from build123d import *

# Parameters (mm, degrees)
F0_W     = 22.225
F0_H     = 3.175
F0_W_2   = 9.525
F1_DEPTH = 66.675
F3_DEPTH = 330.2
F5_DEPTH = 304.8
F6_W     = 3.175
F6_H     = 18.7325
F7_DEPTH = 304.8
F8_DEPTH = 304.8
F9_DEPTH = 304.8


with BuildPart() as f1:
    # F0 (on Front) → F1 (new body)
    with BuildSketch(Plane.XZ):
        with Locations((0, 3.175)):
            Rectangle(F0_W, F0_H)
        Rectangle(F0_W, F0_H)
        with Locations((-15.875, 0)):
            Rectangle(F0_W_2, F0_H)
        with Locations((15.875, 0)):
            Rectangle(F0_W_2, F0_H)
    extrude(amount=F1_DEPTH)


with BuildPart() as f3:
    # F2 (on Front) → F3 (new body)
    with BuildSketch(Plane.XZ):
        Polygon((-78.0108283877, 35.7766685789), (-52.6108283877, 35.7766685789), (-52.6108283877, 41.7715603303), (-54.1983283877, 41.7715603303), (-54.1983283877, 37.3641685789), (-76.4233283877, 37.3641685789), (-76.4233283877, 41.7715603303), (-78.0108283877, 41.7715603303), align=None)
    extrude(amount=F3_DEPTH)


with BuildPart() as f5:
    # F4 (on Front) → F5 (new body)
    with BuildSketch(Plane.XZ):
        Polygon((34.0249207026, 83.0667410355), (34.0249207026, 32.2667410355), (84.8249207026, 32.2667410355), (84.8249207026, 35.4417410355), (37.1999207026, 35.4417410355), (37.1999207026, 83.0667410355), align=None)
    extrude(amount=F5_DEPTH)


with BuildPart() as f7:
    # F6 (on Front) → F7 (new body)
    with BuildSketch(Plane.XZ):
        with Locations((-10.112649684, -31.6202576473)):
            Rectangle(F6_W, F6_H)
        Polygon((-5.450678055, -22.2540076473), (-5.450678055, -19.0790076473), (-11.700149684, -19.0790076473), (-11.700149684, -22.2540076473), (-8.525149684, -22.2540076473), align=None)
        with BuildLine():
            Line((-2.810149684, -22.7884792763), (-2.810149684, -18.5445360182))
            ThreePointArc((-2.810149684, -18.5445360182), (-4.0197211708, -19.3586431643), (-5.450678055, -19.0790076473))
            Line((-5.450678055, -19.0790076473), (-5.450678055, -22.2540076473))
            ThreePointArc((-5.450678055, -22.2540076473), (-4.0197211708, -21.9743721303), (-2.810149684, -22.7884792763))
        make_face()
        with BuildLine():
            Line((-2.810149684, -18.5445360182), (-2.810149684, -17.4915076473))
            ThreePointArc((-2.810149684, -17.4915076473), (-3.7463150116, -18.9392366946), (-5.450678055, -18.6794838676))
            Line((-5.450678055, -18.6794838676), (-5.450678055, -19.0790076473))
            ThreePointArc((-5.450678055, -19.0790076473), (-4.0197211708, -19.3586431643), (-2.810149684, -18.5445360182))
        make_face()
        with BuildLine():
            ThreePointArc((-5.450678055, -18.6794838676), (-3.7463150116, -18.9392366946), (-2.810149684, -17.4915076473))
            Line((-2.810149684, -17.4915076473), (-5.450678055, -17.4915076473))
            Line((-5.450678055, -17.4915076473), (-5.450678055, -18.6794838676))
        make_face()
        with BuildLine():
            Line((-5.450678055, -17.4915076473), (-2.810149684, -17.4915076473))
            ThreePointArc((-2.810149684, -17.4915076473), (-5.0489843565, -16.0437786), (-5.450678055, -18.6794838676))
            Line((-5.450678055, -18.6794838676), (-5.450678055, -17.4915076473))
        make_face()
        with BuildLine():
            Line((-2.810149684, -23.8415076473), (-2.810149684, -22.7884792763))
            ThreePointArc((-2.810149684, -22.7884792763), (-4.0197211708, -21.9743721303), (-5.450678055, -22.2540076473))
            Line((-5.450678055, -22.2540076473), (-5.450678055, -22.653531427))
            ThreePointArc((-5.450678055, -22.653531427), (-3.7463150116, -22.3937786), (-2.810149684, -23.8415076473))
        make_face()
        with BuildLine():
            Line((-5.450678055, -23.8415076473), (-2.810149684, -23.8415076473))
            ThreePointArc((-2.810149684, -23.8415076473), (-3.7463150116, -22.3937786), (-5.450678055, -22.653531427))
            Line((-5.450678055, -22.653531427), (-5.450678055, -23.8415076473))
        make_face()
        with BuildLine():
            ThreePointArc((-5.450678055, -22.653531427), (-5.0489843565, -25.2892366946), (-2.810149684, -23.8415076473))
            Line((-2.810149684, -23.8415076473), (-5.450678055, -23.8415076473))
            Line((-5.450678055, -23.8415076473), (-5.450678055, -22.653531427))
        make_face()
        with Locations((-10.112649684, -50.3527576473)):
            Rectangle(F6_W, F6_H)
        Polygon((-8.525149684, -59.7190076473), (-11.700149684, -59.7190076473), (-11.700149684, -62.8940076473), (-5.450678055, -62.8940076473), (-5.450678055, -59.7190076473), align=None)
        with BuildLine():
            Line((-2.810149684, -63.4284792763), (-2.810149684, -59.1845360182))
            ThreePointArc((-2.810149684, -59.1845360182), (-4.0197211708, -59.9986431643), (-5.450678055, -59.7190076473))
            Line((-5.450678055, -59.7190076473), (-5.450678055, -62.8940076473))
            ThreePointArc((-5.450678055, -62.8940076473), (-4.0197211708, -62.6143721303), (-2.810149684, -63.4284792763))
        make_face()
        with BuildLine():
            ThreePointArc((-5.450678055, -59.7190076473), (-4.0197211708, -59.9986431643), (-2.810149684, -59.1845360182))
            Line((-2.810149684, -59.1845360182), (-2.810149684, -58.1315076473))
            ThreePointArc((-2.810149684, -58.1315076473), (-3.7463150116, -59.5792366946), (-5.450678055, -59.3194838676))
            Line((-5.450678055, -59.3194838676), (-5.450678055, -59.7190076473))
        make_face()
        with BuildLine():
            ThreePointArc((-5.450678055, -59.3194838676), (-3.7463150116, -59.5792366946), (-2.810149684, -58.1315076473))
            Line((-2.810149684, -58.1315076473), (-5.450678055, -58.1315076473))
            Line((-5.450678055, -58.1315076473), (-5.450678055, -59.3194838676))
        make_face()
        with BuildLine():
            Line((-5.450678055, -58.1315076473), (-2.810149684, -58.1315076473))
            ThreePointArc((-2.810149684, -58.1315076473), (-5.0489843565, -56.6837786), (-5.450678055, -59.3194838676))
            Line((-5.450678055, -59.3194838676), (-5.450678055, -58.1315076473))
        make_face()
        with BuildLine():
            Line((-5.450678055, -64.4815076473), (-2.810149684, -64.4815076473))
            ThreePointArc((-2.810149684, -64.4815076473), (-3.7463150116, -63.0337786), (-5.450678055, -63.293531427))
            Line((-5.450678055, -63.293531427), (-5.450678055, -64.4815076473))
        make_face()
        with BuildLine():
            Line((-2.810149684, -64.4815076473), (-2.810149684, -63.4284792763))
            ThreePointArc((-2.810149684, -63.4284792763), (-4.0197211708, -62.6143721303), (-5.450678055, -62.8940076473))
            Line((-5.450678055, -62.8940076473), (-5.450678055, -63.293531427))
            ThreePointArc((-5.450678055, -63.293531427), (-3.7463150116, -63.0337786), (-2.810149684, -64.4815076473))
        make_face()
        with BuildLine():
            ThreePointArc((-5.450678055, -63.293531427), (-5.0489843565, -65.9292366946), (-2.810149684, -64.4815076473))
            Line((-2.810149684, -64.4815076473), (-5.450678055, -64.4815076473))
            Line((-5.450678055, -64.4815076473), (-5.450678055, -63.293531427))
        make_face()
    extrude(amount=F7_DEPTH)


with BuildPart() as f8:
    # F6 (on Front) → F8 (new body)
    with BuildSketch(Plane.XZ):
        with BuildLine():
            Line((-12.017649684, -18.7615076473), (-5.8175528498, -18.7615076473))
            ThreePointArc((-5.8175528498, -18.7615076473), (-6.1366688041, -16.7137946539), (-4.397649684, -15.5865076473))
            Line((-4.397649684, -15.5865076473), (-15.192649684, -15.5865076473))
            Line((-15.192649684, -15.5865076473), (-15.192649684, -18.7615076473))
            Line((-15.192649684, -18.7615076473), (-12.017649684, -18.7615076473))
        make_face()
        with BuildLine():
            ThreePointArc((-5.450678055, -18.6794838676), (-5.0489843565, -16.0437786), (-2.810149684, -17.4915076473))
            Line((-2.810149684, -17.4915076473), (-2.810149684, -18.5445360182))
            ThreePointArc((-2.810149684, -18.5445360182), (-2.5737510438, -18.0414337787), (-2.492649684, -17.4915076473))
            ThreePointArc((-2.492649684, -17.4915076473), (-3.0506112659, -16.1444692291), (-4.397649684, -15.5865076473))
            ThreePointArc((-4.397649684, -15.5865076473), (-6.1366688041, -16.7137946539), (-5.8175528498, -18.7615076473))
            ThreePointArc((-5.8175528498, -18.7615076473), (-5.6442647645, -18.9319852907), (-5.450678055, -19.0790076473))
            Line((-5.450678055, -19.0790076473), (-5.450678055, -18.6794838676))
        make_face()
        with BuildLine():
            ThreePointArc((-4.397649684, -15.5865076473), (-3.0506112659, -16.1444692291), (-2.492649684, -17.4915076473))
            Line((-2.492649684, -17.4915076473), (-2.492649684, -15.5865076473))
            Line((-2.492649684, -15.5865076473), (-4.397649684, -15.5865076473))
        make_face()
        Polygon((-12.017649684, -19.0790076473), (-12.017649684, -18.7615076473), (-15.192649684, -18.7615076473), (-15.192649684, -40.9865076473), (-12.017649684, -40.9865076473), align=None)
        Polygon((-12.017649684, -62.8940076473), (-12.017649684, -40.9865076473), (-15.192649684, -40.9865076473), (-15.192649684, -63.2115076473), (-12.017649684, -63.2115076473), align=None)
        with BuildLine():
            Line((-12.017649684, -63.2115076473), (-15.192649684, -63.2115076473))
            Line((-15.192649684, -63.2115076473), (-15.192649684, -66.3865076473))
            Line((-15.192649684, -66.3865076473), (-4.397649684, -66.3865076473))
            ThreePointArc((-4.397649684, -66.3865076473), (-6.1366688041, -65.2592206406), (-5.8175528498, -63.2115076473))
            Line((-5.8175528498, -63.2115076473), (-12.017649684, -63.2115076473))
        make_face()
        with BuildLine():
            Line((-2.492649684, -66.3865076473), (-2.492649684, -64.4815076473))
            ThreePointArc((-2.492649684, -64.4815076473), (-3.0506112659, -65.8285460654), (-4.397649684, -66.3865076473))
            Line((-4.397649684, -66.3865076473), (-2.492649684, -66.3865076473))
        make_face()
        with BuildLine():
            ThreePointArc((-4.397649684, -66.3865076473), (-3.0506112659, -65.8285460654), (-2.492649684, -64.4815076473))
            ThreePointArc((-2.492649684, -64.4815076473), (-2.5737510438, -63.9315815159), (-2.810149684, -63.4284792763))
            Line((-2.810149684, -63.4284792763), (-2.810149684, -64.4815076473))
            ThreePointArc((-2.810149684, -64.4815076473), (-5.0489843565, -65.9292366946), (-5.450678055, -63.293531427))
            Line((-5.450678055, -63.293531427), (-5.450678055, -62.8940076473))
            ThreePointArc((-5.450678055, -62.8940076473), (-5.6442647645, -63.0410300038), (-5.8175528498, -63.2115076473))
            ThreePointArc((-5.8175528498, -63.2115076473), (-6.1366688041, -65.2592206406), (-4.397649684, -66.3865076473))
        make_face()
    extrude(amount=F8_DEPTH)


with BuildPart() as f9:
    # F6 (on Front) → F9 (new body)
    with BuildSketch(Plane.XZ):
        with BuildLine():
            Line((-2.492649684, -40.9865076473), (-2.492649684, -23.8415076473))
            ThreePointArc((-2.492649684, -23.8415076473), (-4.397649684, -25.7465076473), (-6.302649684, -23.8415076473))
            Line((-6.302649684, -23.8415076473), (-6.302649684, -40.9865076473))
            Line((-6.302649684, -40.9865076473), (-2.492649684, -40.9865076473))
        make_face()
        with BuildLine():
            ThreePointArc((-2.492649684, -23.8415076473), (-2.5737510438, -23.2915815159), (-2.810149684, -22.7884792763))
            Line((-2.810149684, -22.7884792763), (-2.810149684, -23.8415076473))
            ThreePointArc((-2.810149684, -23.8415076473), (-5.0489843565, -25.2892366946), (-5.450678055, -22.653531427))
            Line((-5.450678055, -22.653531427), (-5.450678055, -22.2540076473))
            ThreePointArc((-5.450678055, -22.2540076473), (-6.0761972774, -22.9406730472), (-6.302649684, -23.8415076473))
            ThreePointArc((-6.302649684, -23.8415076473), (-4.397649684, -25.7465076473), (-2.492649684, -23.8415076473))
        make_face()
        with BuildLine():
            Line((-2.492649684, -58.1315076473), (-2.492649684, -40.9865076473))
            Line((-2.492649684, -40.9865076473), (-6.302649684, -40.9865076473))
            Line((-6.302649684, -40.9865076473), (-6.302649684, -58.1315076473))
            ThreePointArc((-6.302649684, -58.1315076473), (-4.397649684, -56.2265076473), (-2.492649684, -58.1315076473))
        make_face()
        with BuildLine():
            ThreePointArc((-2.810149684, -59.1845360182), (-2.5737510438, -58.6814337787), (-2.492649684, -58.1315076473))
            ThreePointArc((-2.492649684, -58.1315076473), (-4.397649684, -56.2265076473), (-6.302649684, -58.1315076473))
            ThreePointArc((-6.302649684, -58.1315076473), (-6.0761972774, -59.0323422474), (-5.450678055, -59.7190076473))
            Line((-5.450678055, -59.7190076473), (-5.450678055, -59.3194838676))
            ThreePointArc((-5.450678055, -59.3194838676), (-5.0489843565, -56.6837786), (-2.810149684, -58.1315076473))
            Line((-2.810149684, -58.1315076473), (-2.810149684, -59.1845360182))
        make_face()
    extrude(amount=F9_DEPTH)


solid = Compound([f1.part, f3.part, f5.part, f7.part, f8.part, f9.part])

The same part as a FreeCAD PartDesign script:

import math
import FreeCAD as App
import Part
import Sketcher
from FreeCAD import Vector
Q = App.Units.Quantity


def add_polygon(sketch, points):
    """Adds a closed chain of lines whose ends are joined by coincident constraints."""
    first, n = sketch.GeometryCount, len(points)
    for a, b in zip(points, points[1:] + points[:1]):
        sketch.addGeometry(Part.LineSegment(App.Vector(*a, 0), App.Vector(*b, 0)), False)
    for i in range(n):
        sketch.addConstraint(Sketcher.Constraint("Coincident", first + i, 2, first + (i + 1) % n, 1))

doc = App.newDocument("Part")
body = doc.addObject("PartDesign::Body", "Body")

# Sketch on XZ plane
sketch1 = body.newObject("Sketcher::SketchObject", "Sketch")
sketch1.AttachmentSupport = (doc.getObject("XZ_Plane"), [""])
sketch1.MapMode = "FlatFace"
add_polygon(sketch1, [(-11.1, 4.8), (-11.1, 1.6), (-20.6, 1.6), (-20.6, -1.6), (20.6, -1.6), (20.6, 1.6), (11.1, 1.6), (11.1, 4.8)])  # lines 0-7
sketch1.addConstraint([
    Sketcher.Constraint("Vertical", 0),
    Sketcher.Constraint("Horizontal", 1),
    Sketcher.Constraint("Vertical", 2),
    Sketcher.Constraint("Horizontal", 3),
    Sketcher.Constraint("Vertical", 4),
    Sketcher.Constraint("Horizontal", 5),
    Sketcher.Constraint("Vertical", 6),
    Sketcher.Constraint("Horizontal", 7),
    Sketcher.Constraint("Symmetric", 1, 2, 3, 2, -1, 1),
    Sketcher.Constraint("Symmetric", 0, 2, 5, 2, -2),
    Sketcher.Constraint("Equal", 0, 2),
    Sketcher.Constraint("DistanceX", 1, 2, 1, 1, Q("0.375 in")),
    Sketcher.Constraint("DistanceX", 3, 1, 3, 2, Q("1.625 in")),
    Sketcher.Constraint("DistanceY", 0, 2, 0, 1, Q("0.125 in")),
])
pad1 = body.newObject("PartDesign::Pad", "Pad")
pad1.Profile = sketch1
pad1.Length = Q("2.625 in")
body2 = doc.addObject("PartDesign::Body", "Body001")

# Sketch on XZ plane
sketch2 = body2.newObject("Sketcher::SketchObject", "Sketch001")
sketch2.AttachmentSupport = (doc.getObject("XZ_Plane001"), [""])
sketch2.MapMode = "FlatFace"
add_polygon(sketch2, [(-78, 35.8), (-52.6, 35.8), (-52.6, 41.8), (-54.2, 41.8), (-54.2, 37.4), (-76.4, 37.4), (-76.4, 41.8), (-78, 41.8)])  # lines 0-7
sketch2.addConstraint([
    Sketcher.Constraint("Horizontal", 0),
    Sketcher.Constraint("Vertical", 1),
    Sketcher.Constraint("Horizontal", 2),
    Sketcher.Constraint("Vertical", 3),
    Sketcher.Constraint("Horizontal", 4),
    Sketcher.Constraint("Vertical", 5),
    Sketcher.Constraint("Horizontal", 6),
    Sketcher.Constraint("Vertical", 7),
    Sketcher.Constraint("Horizontal", 2, 2, 5, 2),
    Sketcher.Constraint("Equal", 2, 6),
    Sketcher.Constraint("DistanceX", 0, 1, 0, 2, Q("1 in")),
    Sketcher.Constraint("DistanceX", 2, 2, 2, 1, Q("0.0625 in")),
    Sketcher.Constraint("DistanceY", 0, 2, 3, 2, Q("0.0625 in")),
    Sketcher.Constraint("DistanceY", 1, 1, 1, 2, Q("5.994892 mm")),
    Sketcher.Constraint("DistanceX", 0, 2, -1, 1, Q("52.610828 mm")),
    Sketcher.Constraint("DistanceY", -1, 1, 0, 2, Q("35.776669 mm")),
])
pad2 = body2.newObject("PartDesign::Pad", "Pad001")
pad2.Profile = sketch2
pad2.Length = Q("13 in")
body3 = doc.addObject("PartDesign::Body", "Body002")

# Sketch on XZ plane
sketch3 = body3.newObject("Sketcher::SketchObject", "Sketch002")
sketch3.AttachmentSupport = (doc.getObject("XZ_Plane002"), [""])
sketch3.MapMode = "FlatFace"
add_polygon(sketch3, [(34, 83.1), (34, 32.3), (84.8, 32.3), (84.8, 35.4), (37.2, 35.4), (37.2, 83.1)])  # lines 0-5
sketch3.addConstraint([
    Sketcher.Constraint("Vertical", 0),
    Sketcher.Constraint("Horizontal", 1),
    Sketcher.Constraint("Vertical", 2),
    Sketcher.Constraint("Horizontal", 3),
    Sketcher.Constraint("Vertical", 4),
    Sketcher.Constraint("Horizontal", 5),
    Sketcher.Constraint("Equal", 1, 0),
    Sketcher.Constraint("Equal", 5, 2),
    Sketcher.Constraint("DistanceX", 1, 1, 1, 2, Q("2 in")),
    Sketcher.Constraint("DistanceX", 3, 2, 3, 1, Q("1.875 in")),
    Sketcher.Constraint("DistanceX", -1, 1, 0, 2, Q("34.024921 mm")),
    Sketcher.Constraint("DistanceY", -1, 1, 0, 2, Q("32.266741 mm")),
])
pad3 = body3.newObject("PartDesign::Pad", "Pad002")
pad3.Profile = sketch3
pad3.Length = Q("12 in")
body4 = doc.addObject("PartDesign::Body", "Body003")

# Sketch on XZ plane
sketch4 = body4.newObject("Sketcher::SketchObject", "Sketch003")
sketch4.AttachmentSupport = (doc.getObject("XZ_Plane003"), [""])
sketch4.MapMode = "FlatFace"
sketch4.addGeometry([
    Part.LineSegment(Vector(-8.53, -22.25, 0), Vector(-5.45, -22.25, 0)),  # 0
    Part.LineSegment(Vector(-5.45, -22.25, 0), Vector(-5.45, -22.65, 0)),  # 1
    Part.ArcOfCircle(Part.Circle(Vector(-4.4, -23.84, 0), Vector(0, 0, 1), 1.59), math.radians(132), math.radians(360)),  # 2
    Part.LineSegment(Vector(-2.81, -23.84, 0), Vector(-2.81, -17.49, 0)),  # 3
    Part.ArcOfCircle(Part.Circle(Vector(-4.4, -17.49, 0), Vector(0, 0, 1), 1.59), math.radians(0), math.radians(228)),  # 4
    Part.LineSegment(Vector(-5.45, -18.68, 0), Vector(-5.45, -19.08, 0)),  # 5
    Part.LineSegment(Vector(-5.45, -19.08, 0), Vector(-11.7, -19.08, 0)),  # 6
    Part.LineSegment(Vector(-11.7, -19.08, 0), Vector(-11.7, -62.89, 0)),  # 7
    Part.LineSegment(Vector(-11.7, -62.89, 0), Vector(-5.45, -62.89, 0)),  # 8
    Part.LineSegment(Vector(-5.45, -62.89, 0), Vector(-5.45, -63.29, 0)),  # 9
    Part.ArcOfCircle(Part.Circle(Vector(-4.4, -64.48, 0), Vector(0, 0, 1), 1.59), math.radians(132), math.radians(360)),  # 10
    Part.LineSegment(Vector(-2.81, -64.48, 0), Vector(-2.81, -58.13, 0)),  # 11
    Part.ArcOfCircle(Part.Circle(Vector(-4.4, -58.13, 0), Vector(0, 0, 1), 1.59), math.radians(0), math.radians(228)),  # 12
    Part.LineSegment(Vector(-5.45, -59.32, 0), Vector(-5.45, -59.72, 0)),  # 13
    Part.LineSegment(Vector(-5.45, -59.72, 0), Vector(-8.53, -59.72, 0)),  # 14
    Part.LineSegment(Vector(-8.53, -59.72, 0), Vector(-8.53, -22.25, 0)),  # 15
], False)
sketch4.addConstraint([
    Sketcher.Constraint("Coincident", 0, 2, 1, 1),
    Sketcher.Constraint("Coincident", 1, 2, 2, 1),
    Sketcher.Constraint("Tangent", 2, 2, 3, 1),
    Sketcher.Constraint("Tangent", 3, 2, 4, 1),
    Sketcher.Constraint("Coincident", 4, 2, 5, 1),
    Sketcher.Constraint("Coincident", 5, 2, 6, 1),
    Sketcher.Constraint("Coincident", 6, 2, 7, 1),
    Sketcher.Constraint("Coincident", 7, 2, 8, 1),
    Sketcher.Constraint("Coincident", 8, 2, 9, 1),
    Sketcher.Constraint("Coincident", 9, 2, 10, 1),
    Sketcher.Constraint("Tangent", 10, 2, 11, 1),
    Sketcher.Constraint("Tangent", 11, 2, 12, 1),
    Sketcher.Constraint("Coincident", 12, 2, 13, 1),
    Sketcher.Constraint("Coincident", 13, 2, 14, 1),
    Sketcher.Constraint("Coincident", 14, 2, 15, 1),
    Sketcher.Constraint("Coincident", 15, 2, 0, 1),
    Sketcher.Constraint("Horizontal", 0),
    Sketcher.Constraint("Vertical", 1),
    Sketcher.Constraint("Vertical", 3),
    Sketcher.Constraint("Vertical", 5),
    Sketcher.Constraint("Horizontal", 6),
    Sketcher.Constraint("Vertical", 7),
    Sketcher.Constraint("Horizontal", 8),
    Sketcher.Constraint("Vertical", 9),
    Sketcher.Constraint("Vertical", 11),
    Sketcher.Constraint("Vertical", 13),
    Sketcher.Constraint("Horizontal", 14),
    Sketcher.Constraint("Vertical", 15),
    Sketcher.Constraint("Equal", 2, 4),
    Sketcher.Constraint("Equal", 4, 10),
    Sketcher.Constraint("Equal", 10, 12),
    Sketcher.Constraint("Vertical", 4, 3, 10, 3),
    Sketcher.Constraint("Vertical", 1, 2, 4, 2),
    Sketcher.Constraint("Vertical", 5, 2, 8, 2),
    Sketcher.Constraint("Vertical", 9, 2, 12, 2),
    Sketcher.Constraint("Equal", 1, 5),
    Sketcher.Constraint("Equal", 5, 9),
    Sketcher.Constraint("Equal", 3, 11),
    Sketcher.Constraint("Equal", 9, 13),
    Sketcher.Constraint("Radius", 2, Q("0.0625 in")),
    Sketcher.Constraint("DistanceY", 3, 1, 3, 2, Q("0.25 in")),
    Sketcher.Constraint("DistanceY", 10, 3, 2, 3, Q("1.6 in")),
    Sketcher.Constraint("DistanceY", 7, 2, 7, 1, Q("1.725 in")),
    Sketcher.Constraint("DistanceX", 7, 2, 2, 2, Q("0.35 in")),
    Sketcher.Constraint("DistanceX", 7, 2, 14, 2, Q("0.125 in")),
    Sketcher.Constraint("DistanceX", 0, 1, 0, 2, Q("3.074472 mm")),
    Sketcher.Constraint("DistanceX", 2, 3, -1, 1, Q("4.39765 mm")),
    Sketcher.Constraint("DistanceY", 1, 2, -1, 1, Q("22.653531 mm")),
])
pad4 = body4.newObject("PartDesign::Pad", "Pad003")
pad4.Profile = sketch4
pad4.Length = Q("12 in")
body5 = doc.addObject("PartDesign::Body", "Body004")

# Sketch on XZ plane
sketch5 = body5.newObject("Sketcher::SketchObject", "Sketch004")
sketch5.AttachmentSupport = (doc.getObject("XZ_Plane004"), [""])
sketch5.MapMode = "FlatFace"
sketch5.addGeometry([
    Part.LineSegment(Vector(-15.19, -15.59, 0), Vector(-15.19, -66.39, 0)),  # 0
    Part.LineSegment(Vector(-15.19, -66.39, 0), Vector(-2.49, -66.39, 0)),  # 1
    Part.LineSegment(Vector(-2.49, -66.39, 0), Vector(-2.49, -64.48, 0)),  # 2
    Part.ArcOfCircle(Part.Circle(Vector(-4.4, -64.48, 0), Vector(0, 0, 1), 1.91), math.radians(0), math.radians(34)),  # 3
    Part.LineSegment(Vector(-2.81, -63.43, 0), Vector(-2.81, -64.48, 0)),  # 4
    Part.ArcOfCircle(Part.Circle(Vector(-4.4, -64.48, 0), Vector(0, 0, 1), 1.59), math.radians(132), math.radians(360)),  # 5
    Part.LineSegment(Vector(-5.45, -63.29, 0), Vector(-5.45, -62.89, 0)),  # 6
    Part.ArcOfCircle(Part.Circle(Vector(-4.4, -64.48, 0), Vector(0, 0, 1), 1.9), math.radians(123.56), math.radians(138.19)),  # 7
    Part.LineSegment(Vector(-5.82, -63.21, 0), Vector(-12.02, -63.21, 0)),  # 8
    Part.LineSegment(Vector(-12.02, -63.21, 0), Vector(-12.02, -18.76, 0)),  # 9
    Part.LineSegment(Vector(-12.02, -18.76, 0), Vector(-5.82, -18.76, 0)),  # 10
    Part.ArcOfCircle(Part.Circle(Vector(-4.4, -17.49, 0), Vector(0, 0, 1), 1.91), math.radians(-138.19), math.radians(-123.56)),  # 11
    Part.LineSegment(Vector(-5.45, -19.08, 0), Vector(-5.45, -18.68, 0)),  # 12
    Part.ArcOfCircle(Part.Circle(Vector(-4.4, -17.49, 0), Vector(0, 0, 1), 1.59), math.radians(0), math.radians(228)),  # 13
    Part.LineSegment(Vector(-2.81, -17.49, 0), Vector(-2.81, -18.54, 0)),  # 14
    Part.ArcOfCircle(Part.Circle(Vector(-4.4, -17.49, 0), Vector(0, 0, 1), 1.91), math.radians(-34), math.radians(0)),  # 15
    Part.LineSegment(Vector(-2.49, -17.49, 0), Vector(-2.49, -15.59, 0)),  # 16
    Part.LineSegment(Vector(-2.49, -15.59, 0), Vector(-15.19, -15.59, 0)),  # 17
], False)
sketch5.addConstraint([
    Sketcher.Constraint("Coincident", 0, 2, 1, 1),
    Sketcher.Constraint("Coincident", 1, 2, 2, 1),
    Sketcher.Constraint("Tangent", 2, 2, 3, 1),
    Sketcher.Constraint("Coincident", 3, 2, 4, 1),
    Sketcher.Constraint("Tangent", 4, 2, 5, 2),
    Sketcher.Constraint("Coincident", 5, 1, 6, 1),
    Sketcher.Constraint("Coincident", 6, 2, 7, 1),
    Sketcher.Constraint("Coincident", 7, 2, 8, 1),
    Sketcher.Constraint("Coincident", 8, 2, 9, 1),
    Sketcher.Constraint("Coincident", 9, 2, 10, 1),
    Sketcher.Constraint("Coincident", 10, 2, 11, 1),
    Sketcher.Constraint("Coincident", 11, 2, 12, 1),
    Sketcher.Constraint("Coincident", 12, 2, 13, 2),
    Sketcher.Constraint("Tangent", 13, 1, 14, 1),
    Sketcher.Constraint("Coincident", 14, 2, 15, 1),
    Sketcher.Constraint("Tangent", 15, 2, 16, 1),
    Sketcher.Constraint("Coincident", 16, 2, 17, 1),
    Sketcher.Constraint("Coincident", 17, 2, 0, 1),
    Sketcher.Constraint("Vertical", 0),
    Sketcher.Constraint("Horizontal", 1),
    Sketcher.Constraint("Vertical", 2),
    Sketcher.Constraint("Vertical", 4),
    Sketcher.Constraint("Vertical", 6),
    Sketcher.Constraint("Horizontal", 8),
    Sketcher.Constraint("Vertical", 9),
    Sketcher.Constraint("Horizontal", 10),
    Sketcher.Constraint("Vertical", 12),
    Sketcher.Constraint("Vertical", 14),
    Sketcher.Constraint("Vertical", 16),
    Sketcher.Constraint("Horizontal", 17),
    Sketcher.Constraint("Coincident", 5, 3, 3, 3),
    Sketcher.Constraint("Coincident", 7, 3, 3, 3),
    Sketcher.Constraint("Coincident", 13, 3, 11, 3),
    Sketcher.Constraint("Coincident", 15, 3, 11, 3),
    Sketcher.Constraint("Equal", 3, 7),
    Sketcher.Constraint("Equal", 7, 11),
    Sketcher.Constraint("Equal", 5, 13),
    Sketcher.Constraint("Equal", 11, 15),
    Sketcher.Constraint("Vertical", 7, 3, 11, 3),
    Sketcher.Constraint("Vertical", 7, 2, 10, 2),
    Sketcher.Constraint("Vertical", 6, 2, 11, 2),
    Sketcher.Constraint("Equal", 2, 16),
    Sketcher.Constraint("DistanceY", 0, 2, 0, 1, Q("2 in")),
    Sketcher.Constraint("DistanceX", 1, 1, 1, 2, Q("0.5 in")),
    Sketcher.Constraint("Radius", 3, Q("0.075 in")),
    Sketcher.Constraint("Radius", 5, Q("0.0625 in")),
    Sketcher.Constraint("DistanceY", 9, 1, 9, 2, Q("1.75 in")),
    Sketcher.Constraint("DistanceX", 8, 2, 7, 3, Q("0.3 in")),
    Sketcher.Constraint("DistanceY", 2, 1, 2, 2, Q("0.075 in")),
    Sketcher.Constraint("DistanceY", 7, 3, 6, 2, Q("0.0625 in")),
    Sketcher.Constraint("DistanceY", 14, 2, -1, 1, Q("0.7300998 in")),
    Sketcher.Constraint("DistanceX", 3, 3, -1, 1, Q("4.39765 mm")),
])
pad5 = body5.newObject("PartDesign::Pad", "Pad004")
pad5.Profile = sketch5
pad5.Length = Q("12 in")
body6 = doc.addObject("PartDesign::Body", "Body005")

# Sketch on XZ plane
sketch6 = body6.newObject("Sketcher::SketchObject", "Sketch005")
sketch6.AttachmentSupport = (doc.getObject("XZ_Plane005"), [""])
sketch6.MapMode = "FlatFace"
sketch6.addGeometry([
    Part.ArcOfCircle(Part.Circle(Vector(-4.4, -23.84, 0), Vector(0, 0, 1), 1.91), math.radians(0), math.radians(34)),  # 0
    Part.LineSegment(Vector(-2.81, -22.79, 0), Vector(-2.81, -23.84, 0)),  # 1
    Part.ArcOfCircle(Part.Circle(Vector(-4.4, -23.84, 0), Vector(0, 0, 1), 1.59), math.radians(132), math.radians(360)),  # 2
    Part.LineSegment(Vector(-5.45, -22.65, 0), Vector(-5.45, -22.25, 0)),  # 3
    Part.ArcOfCircle(Part.Circle(Vector(-4.4, -23.84, 0), Vector(0, 0, 1), 1.91), math.radians(124), math.radians(180)),  # 4
    Part.LineSegment(Vector(-6.3, -23.84, 0), Vector(-6.3, -58.13, 0)),  # 5
    Part.ArcOfCircle(Part.Circle(Vector(-4.4, -58.13, 0), Vector(0, 0, 1), 1.91), math.radians(180), math.radians(236)),  # 6
    Part.LineSegment(Vector(-5.45, -59.72, 0), Vector(-5.45, -59.32, 0)),  # 7
    Part.ArcOfCircle(Part.Circle(Vector(-4.4, -58.13, 0), Vector(0, 0, 1), 1.59), math.radians(0), math.radians(228)),  # 8
    Part.LineSegment(Vector(-2.81, -58.13, 0), Vector(-2.81, -59.18, 0)),  # 9
    Part.ArcOfCircle(Part.Circle(Vector(-4.4, -58.13, 0), Vector(0, 0, 1), 1.91), math.radians(-34), math.radians(0)),  # 10
    Part.LineSegment(Vector(-2.49, -58.13, 0), Vector(-2.49, -23.84, 0)),  # 11
], False)
sketch6.addConstraint([
    Sketcher.Constraint("Coincident", 0, 2, 1, 1),
    Sketcher.Constraint("Tangent", 1, 2, 2, 2),
    Sketcher.Constraint("Coincident", 2, 1, 3, 1),
    Sketcher.Constraint("Coincident", 3, 2, 4, 1),
    Sketcher.Constraint("Tangent", 4, 2, 5, 1),
    Sketcher.Constraint("Tangent", 5, 2, 6, 1),
    Sketcher.Constraint("Coincident", 6, 2, 7, 1),
    Sketcher.Constraint("Coincident", 7, 2, 8, 2),
    Sketcher.Constraint("Tangent", 8, 1, 9, 1),
    Sketcher.Constraint("Coincident", 9, 2, 10, 1),
    Sketcher.Constraint("Tangent", 10, 2, 11, 1),
    Sketcher.Constraint("Tangent", 11, 2, 0, 1),
    Sketcher.Constraint("Vertical", 1),
    Sketcher.Constraint("Vertical", 3),
    Sketcher.Constraint("Vertical", 5),
    Sketcher.Constraint("Vertical", 7),
    Sketcher.Constraint("Vertical", 9),
    Sketcher.Constraint("Vertical", 11),
    Sketcher.Constraint("Coincident", 2, 3, 0, 3),
    Sketcher.Constraint("Coincident", 4, 3, 0, 3),
    Sketcher.Constraint("Coincident", 8, 3, 6, 3),
    Sketcher.Constraint("Coincident", 10, 3, 6, 3),
    Sketcher.Constraint("Equal", 0, 4),
    Sketcher.Constraint("Equal", 4, 6),
    Sketcher.Constraint("Equal", 2, 8),
    Sketcher.Constraint("Vertical", 3, 2, 6, 2),
    Sketcher.Constraint("Radius", 0, Q("0.075 in")),
    Sketcher.Constraint("Radius", 2, Q("0.0625 in")),
    Sketcher.Constraint("DistanceY", 5, 2, 5, 1, Q("1.35 in")),
    Sketcher.Constraint("DistanceY", 0, 3, 3, 2, Q("0.0625 in")),
    Sketcher.Constraint("DistanceY", 9, 2, -1, 1, Q("2.3300998 in")),
    Sketcher.Constraint("DistanceX", 0, 3, -1, 1, Q("4.39765 mm")),
])
pad6 = body6.newObject("PartDesign::Pad", "Pad005")
pad6.Profile = sketch6
pad6.Length = Q("12 in")

doc.recompute()
